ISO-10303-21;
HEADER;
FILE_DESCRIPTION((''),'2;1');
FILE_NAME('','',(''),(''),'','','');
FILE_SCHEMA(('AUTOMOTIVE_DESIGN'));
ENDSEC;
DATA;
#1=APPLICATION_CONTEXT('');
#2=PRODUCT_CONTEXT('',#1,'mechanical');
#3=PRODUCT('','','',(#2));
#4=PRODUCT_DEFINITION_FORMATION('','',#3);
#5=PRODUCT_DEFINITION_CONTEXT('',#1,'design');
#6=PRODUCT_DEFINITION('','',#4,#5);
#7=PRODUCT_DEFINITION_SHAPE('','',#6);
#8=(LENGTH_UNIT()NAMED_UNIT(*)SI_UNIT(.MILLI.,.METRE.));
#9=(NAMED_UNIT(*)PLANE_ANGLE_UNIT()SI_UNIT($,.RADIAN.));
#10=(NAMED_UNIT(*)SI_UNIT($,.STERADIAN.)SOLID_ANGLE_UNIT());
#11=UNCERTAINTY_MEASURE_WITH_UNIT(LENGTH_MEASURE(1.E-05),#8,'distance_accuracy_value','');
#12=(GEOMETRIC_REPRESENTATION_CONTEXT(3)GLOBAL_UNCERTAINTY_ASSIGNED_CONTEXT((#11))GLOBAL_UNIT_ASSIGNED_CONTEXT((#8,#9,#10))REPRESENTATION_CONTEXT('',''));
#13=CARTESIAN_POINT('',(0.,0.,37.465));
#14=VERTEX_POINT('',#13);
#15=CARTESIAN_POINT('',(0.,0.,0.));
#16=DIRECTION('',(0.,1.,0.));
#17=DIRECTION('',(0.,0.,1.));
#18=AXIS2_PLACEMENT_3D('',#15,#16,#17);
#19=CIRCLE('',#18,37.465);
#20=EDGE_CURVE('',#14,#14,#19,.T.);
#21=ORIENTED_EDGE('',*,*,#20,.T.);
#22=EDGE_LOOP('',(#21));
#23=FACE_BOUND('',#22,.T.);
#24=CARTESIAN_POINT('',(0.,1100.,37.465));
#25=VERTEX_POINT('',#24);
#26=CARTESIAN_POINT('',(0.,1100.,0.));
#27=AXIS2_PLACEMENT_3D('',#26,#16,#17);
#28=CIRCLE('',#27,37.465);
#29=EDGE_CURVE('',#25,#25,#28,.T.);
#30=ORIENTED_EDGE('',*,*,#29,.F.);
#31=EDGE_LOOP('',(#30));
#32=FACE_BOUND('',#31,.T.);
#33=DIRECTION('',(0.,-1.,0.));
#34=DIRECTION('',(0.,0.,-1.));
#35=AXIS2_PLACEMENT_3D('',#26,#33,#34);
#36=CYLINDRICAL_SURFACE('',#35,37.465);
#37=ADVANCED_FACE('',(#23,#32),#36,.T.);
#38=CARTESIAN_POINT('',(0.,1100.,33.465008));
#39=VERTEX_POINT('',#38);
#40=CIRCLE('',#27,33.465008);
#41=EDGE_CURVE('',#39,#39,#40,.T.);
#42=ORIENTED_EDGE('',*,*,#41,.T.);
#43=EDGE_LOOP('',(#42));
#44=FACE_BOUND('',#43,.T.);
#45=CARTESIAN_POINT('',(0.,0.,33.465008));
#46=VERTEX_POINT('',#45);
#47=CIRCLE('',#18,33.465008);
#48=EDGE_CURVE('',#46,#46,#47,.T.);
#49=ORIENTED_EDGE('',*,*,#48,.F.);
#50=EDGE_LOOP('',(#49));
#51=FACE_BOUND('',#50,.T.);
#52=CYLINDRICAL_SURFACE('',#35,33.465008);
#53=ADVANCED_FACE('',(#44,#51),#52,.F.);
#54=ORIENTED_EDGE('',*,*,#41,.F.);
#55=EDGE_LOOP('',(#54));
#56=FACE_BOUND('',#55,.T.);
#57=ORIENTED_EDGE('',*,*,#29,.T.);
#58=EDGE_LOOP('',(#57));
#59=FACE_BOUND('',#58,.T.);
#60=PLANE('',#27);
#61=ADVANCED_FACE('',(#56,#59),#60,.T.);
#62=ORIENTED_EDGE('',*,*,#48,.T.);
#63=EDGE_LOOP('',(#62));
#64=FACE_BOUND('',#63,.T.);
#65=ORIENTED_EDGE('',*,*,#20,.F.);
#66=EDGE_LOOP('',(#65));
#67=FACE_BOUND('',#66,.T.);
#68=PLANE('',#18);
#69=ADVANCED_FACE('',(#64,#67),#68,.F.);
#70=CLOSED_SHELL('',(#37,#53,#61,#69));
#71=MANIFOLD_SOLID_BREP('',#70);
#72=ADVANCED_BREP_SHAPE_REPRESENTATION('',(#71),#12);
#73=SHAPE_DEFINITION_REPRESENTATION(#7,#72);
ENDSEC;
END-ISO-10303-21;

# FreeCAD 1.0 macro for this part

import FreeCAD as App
import Part
import Sketcher

V = App.Vector
Q = App.Units.Quantity

doc = App.newDocument("Part")
body = doc.addObject("PartDesign::Body", "Body")

sketch1 = body.newObject("Sketcher::SketchObject", "Sketch")
sketch1.AttachmentSupport = (doc.getObject("XZ_Plane"), [""])
sketch1.MapMode = "FlatFace"
sketch1.addGeometry([
    Part.Circle(V(0, 0, 0), V(0, 0, 1), 37),
    Part.Circle(V(0, 0, 0), V(0, 0, 1), 33),
], False)
sketch1.addConstraint([
    Sketcher.Constraint("Coincident", 0, 3, -1, 1),
    Sketcher.Constraint("Coincident", 1, 3, -1, 1),
    Sketcher.Constraint("Diameter", 0, Q("74.93 mm")),
    Sketcher.Constraint("Diameter", 1, Q("66.930016 mm")),
])
pad1 = body.newObject("PartDesign::Pad", "Pad")
pad1.Profile = sketch1
pad1.Length = 1100
pad1.Reversed = True

doc.recompute()
